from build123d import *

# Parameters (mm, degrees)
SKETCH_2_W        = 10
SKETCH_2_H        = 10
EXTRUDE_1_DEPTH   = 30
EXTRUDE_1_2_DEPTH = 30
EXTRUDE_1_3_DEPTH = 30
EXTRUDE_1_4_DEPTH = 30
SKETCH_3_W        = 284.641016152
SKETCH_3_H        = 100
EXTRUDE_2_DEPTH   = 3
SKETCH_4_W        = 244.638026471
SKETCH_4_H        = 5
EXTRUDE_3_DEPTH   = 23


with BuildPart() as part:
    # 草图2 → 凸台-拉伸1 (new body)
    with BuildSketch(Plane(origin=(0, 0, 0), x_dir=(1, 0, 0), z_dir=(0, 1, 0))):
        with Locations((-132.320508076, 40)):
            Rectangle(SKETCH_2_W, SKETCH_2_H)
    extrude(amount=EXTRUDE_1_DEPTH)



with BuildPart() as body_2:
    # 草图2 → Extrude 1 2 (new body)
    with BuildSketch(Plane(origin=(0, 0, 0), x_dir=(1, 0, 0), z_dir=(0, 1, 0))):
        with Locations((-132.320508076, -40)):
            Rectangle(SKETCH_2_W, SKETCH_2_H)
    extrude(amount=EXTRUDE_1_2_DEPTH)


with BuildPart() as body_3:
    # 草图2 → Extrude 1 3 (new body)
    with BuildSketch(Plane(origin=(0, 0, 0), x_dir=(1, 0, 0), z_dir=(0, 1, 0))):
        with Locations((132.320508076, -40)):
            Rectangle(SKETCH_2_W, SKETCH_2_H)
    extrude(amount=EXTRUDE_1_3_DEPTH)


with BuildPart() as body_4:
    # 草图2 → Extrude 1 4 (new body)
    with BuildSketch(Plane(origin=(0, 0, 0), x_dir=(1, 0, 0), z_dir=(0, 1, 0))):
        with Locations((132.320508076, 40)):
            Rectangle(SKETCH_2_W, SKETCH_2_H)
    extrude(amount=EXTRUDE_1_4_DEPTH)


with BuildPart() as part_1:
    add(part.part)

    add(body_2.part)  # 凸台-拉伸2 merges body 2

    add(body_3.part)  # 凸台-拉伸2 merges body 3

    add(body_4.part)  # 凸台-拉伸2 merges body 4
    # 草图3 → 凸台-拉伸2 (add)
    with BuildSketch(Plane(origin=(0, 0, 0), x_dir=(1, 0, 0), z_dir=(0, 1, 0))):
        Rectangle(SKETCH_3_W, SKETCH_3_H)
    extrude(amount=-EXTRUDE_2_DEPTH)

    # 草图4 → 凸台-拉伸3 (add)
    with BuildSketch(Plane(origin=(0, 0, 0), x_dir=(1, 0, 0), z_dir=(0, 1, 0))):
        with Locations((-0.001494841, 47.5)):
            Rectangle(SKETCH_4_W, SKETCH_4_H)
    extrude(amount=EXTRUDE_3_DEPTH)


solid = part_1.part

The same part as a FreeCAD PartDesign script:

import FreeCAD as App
import Part
import Sketcher
from FreeCAD import Vector

doc = App.newDocument("Part")
params = doc.addObject("Spreadsheet::Sheet", "Params")
for row, (alias, value) in enumerate([
    ("sketch1_width", "10 mm"),
    ("pad1_length", "30 mm"),
    ("sketch2_width", "10 mm"),
    ("pad2_length", "30 mm"),
    ("sketch3_width", "10 mm"),
    ("pad3_length", "30 mm"),
    ("sketch4_width", "10 mm"),
    ("pad4_length", "30 mm"),
    ("sketch5_height", "100 mm"),
    ("pad5_length", "3 mm"),
    ("sketch6_height", "5 mm"),
    ("pad6_length", "23 mm"),
], start=1):
    params.set(f"A{row}", alias)
    params.set(f"B{row}", "=" + value)
    params.setAlias(f"B{row}", alias)

body = doc.addObject("PartDesign::Body", "Body")

# Sketch on XZ plane
sketch1 = body.newObject("Sketcher::SketchObject", "Sketch")
sketch1.AttachmentSupport = (doc.getObject("XZ_Plane"), [""])
sketch1.MapMode = "FlatFace"
sketch1.addGeometry([
    Part.LineSegment(Vector(-137, -45, 0), Vector(-137, -35, 0)),
    Part.LineSegment(Vector(-137, -35, 0), Vector(-127, -35, 0)),
    Part.LineSegment(Vector(-127, -35, 0), Vector(-127, -45, 0)),
    Part.LineSegment(Vector(-127, -45, 0), Vector(-137, -45, 0)),
], False)
sketch1.addConstraint([
    Sketcher.Constraint("Coincident", 0, 2, 1, 1),
    Sketcher.Constraint("Coincident", 1, 2, 2, 1),
    Sketcher.Constraint("Coincident", 2, 2, 3, 1),
    Sketcher.Constraint("Coincident", 3, 2, 0, 1),
    Sketcher.Constraint("Vertical", 0),
    Sketcher.Constraint("Horizontal", 1),
    Sketcher.Constraint("Vertical", 2),
    Sketcher.Constraint("Horizontal", 3),
    Sketcher.Constraint("Equal", 3, 0),
    Sketcher.Constraint("DistanceX", 1, 1, 1, 2, 10.0),
    Sketcher.Constraint("DistanceY", 0, 2, -1, 1, 35.0),
    Sketcher.Constraint("DistanceX", 0, 2, -1, 1, 137.320508),
])
sketch1.setExpression("Constraints[9]", "Params.sketch1_width")
pad1 = body.newObject("PartDesign::Pad", "Pad")
pad1.Profile = sketch1
pad1.setExpression("Length", "Params.pad1_length")
pad1.Reversed = True
body2 = doc.addObject("PartDesign::Body", "Body001")

# Sketch on XZ plane
sketch2 = body2.newObject("Sketcher::SketchObject", "Sketch001")
sketch2.AttachmentSupport = (doc.getObject("XZ_Plane001"), [""])
sketch2.MapMode = "FlatFace"
sketch2.addGeometry([
    Part.LineSegment(Vector(-137, 35, 0), Vector(-137, 45, 0)),
    Part.LineSegment(Vector(-137, 45, 0), Vector(-127, 45, 0)),
    Part.LineSegment(Vector(-127, 45, 0), Vector(-127, 35, 0)),
    Part.LineSegment(Vector(-127, 35, 0), Vector(-137, 35, 0)),
], False)
sketch2.addConstraint([
    Sketcher.Constraint("Coincident", 0, 2, 1, 1),
    Sketcher.Constraint("Coincident", 1, 2, 2, 1),
    Sketcher.Constraint("Coincident", 2, 2, 3, 1),
    Sketcher.Constraint("Coincident", 3, 2, 0, 1),
    Sketcher.Constraint("Vertical", 0),
    Sketcher.Constraint("Horizontal", 1),
    Sketcher.Constraint("Vertical", 2),
    Sketcher.Constraint("Horizontal", 3),
    Sketcher.Constraint("Equal", 3, 0),
    Sketcher.Constraint("DistanceX", 1, 1, 1, 2, 10.0),
    Sketcher.Constraint("DistanceY", -1, 1, 0, 2, 45.0),
    Sketcher.Constraint("DistanceX", 0, 2, -1, 1, 137.320508),
])
sketch2.setExpression("Constraints[9]", "Params.sketch2_width")
pad2 = body2.newObject("PartDesign::Pad", "Pad001")
pad2.Profile = sketch2
pad2.setExpression("Length", "Params.pad2_length")
pad2.Reversed = True
body3 = doc.addObject("PartDesign::Body", "Body002")

# Sketch on XZ plane
sketch3 = body3.newObject("Sketcher::SketchObject", "Sketch002")
sketch3.AttachmentSupport = (doc.getObject("XZ_Plane002"), [""])
sketch3.MapMode = "FlatFace"
sketch3.addGeometry([
    Part.LineSegment(Vector(127, 35, 0), Vector(127, 45, 0)),
    Part.LineSegment(Vector(127, 45, 0), Vector(137, 45, 0)),
    Part.LineSegment(Vector(137, 45, 0), Vector(137, 35, 0)),
    Part.LineSegment(Vector(137, 35, 0), Vector(127, 35, 0)),
], False)
sketch3.addConstraint([
    Sketcher.Constraint("Coincident", 0, 2, 1, 1),
    Sketcher.Constraint("Coincident", 1, 2, 2, 1),
    Sketcher.Constraint("Coincident", 2, 2, 3, 1),
    Sketcher.Constraint("Coincident", 3, 2, 0, 1),
    Sketcher.Constraint("Vertical", 0),
    Sketcher.Constraint("Horizontal", 1),
    Sketcher.Constraint("Vertical", 2),
    Sketcher.Constraint("Horizontal", 3),
    Sketcher.Constraint("Equal", 3, 0),
    Sketcher.Constraint("DistanceX", 1, 1, 1, 2, 10.0),
    Sketcher.Constraint("DistanceY", -1, 1, 0, 2, 45.0),
    Sketcher.Constraint("DistanceX", -1, 1, 0, 2, 127.320508),
])
sketch3.setExpression("Constraints[9]", "Params.sketch3_width")
pad3 = body3.newObject("PartDesign::Pad", "Pad002")
pad3.Profile = sketch3
pad3.setExpression("Length", "Params.pad3_length")
pad3.Reversed = True
body4 = doc.addObject("PartDesign::Body", "Body003")

# Sketch on XZ plane
sketch4 = body4.newObject("Sketcher::SketchObject", "Sketch003")
sketch4.AttachmentSupport = (doc.getObject("XZ_Plane003"), [""])
sketch4.MapMode = "FlatFace"
sketch4.addGeometry([
    Part.LineSegment(Vector(127, -45, 0), Vector(127, -35, 0)),
    Part.LineSegment(Vector(127, -35, 0), Vector(137, -35, 0)),
    Part.LineSegment(Vector(137, -35, 0), Vector(137, -45, 0)),
    Part.LineSegment(Vector(137, -45, 0), Vector(127, -45, 0)),
], False)
sketch4.addConstraint([
    Sketcher.Constraint("Coincident", 0, 2, 1, 1),
    Sketcher.Constraint("Coincident", 1, 2, 2, 1),
    Sketcher.Constraint("Coincident", 2, 2, 3, 1),
    Sketcher.Constraint("Coincident", 3, 2, 0, 1),
    Sketcher.Constraint("Vertical", 0),
    Sketcher.Constraint("Horizontal", 1),
    Sketcher.Constraint("Vertical", 2),
    Sketcher.Constraint("Horizontal", 3),
    Sketcher.Constraint("Equal", 3, 0),
    Sketcher.Constraint("DistanceX", 1, 1, 1, 2, 10.0),
    Sketcher.Constraint("DistanceY", 0, 2, -1, 1, 35.0),
    Sketcher.Constraint("DistanceX", -1, 1, 0, 2, 127.320508),
])
sketch4.setExpression("Constraints[9]", "Params.sketch4_width")
pad4 = body4.newObject("PartDesign::Pad", "Pad003")
pad4.Profile = sketch4
pad4.setExpression("Length", "Params.pad4_length")
pad4.Reversed = True
body.AllowCompound = True
doc.recompute()

boolean = body.newObject("PartDesign::Boolean", "Boolean")
boolean.Type = "Fuse"
boolean.addObjects([body2])
doc.recompute()

boolean2 = body.newObject("PartDesign::Boolean", "Boolean001")
boolean2.Type = "Fuse"
boolean2.addObjects([body3])
doc.recompute()

boolean3 = body.newObject("PartDesign::Boolean", "Boolean002")
boolean3.Type = "Fuse"
boolean3.addObjects([body4])

# Sketch on XZ plane
sketch5 = body.newObject("Sketcher::SketchObject", "Sketch004")
sketch5.AttachmentSupport = (doc.getObject("XZ_Plane"), [""])
sketch5.MapMode = "FlatFace"
sketch5.addGeometry([
    Part.LineSegment(Vector(-142, -50, 0), Vector(-142, 50, 0)),
    Part.LineSegment(Vector(-142, 50, 0), Vector(142, 50, 0)),
    Part.LineSegment(Vector(142, 50, 0), Vector(142, -50, 0)),
    Part.LineSegment(Vector(142, -50, 0), Vector(-142, -50, 0)),
], False)
sketch5.addConstraint([
    Sketcher.Constraint("Coincident", 0, 2, 1, 1),
    Sketcher.Constraint("Coincident", 1, 2, 2, 1),
    Sketcher.Constraint("Coincident", 2, 2, 3, 1),
    Sketcher.Constraint("Coincident", 3, 2, 0, 1),
    Sketcher.Constraint("Vertical", 0),
    Sketcher.Constraint("Horizontal", 1),
    Sketcher.Constraint("Vertical", 2),
    Sketcher.Constraint("Horizontal", 3),
    Sketcher.Constraint("Symmetric", 0, 2, 2, 2, -1, 1),
    Sketcher.Constraint("DistanceY", 0, 1, 0, 2, 100.0),
    Sketcher.Constraint("DistanceX", 1, 1, 1, 2, 284.641016),
])
sketch5.setExpression("Constraints[9]", "Params.sketch5_height")
pad5 = body.newObject("PartDesign::Pad", "Pad004")
pad5.Profile = sketch5
pad5.setExpression("Length", "Params.pad5_length")

# Sketch on XZ plane
sketch6 = body.newObject("Sketcher::SketchObject", "Sketch005")
sketch6.AttachmentSupport = (doc.getObject("XZ_Plane"), [""])
sketch6.MapMode = "FlatFace"
sketch6.addGeometry([
    Part.LineSegment(Vector(-122, -50, 0), Vector(-122, -45, 0)),
    Part.LineSegment(Vector(-122, -45, 0), Vector(122, -45, 0)),
    Part.LineSegment(Vector(122, -45, 0), Vector(122, -50, 0)),
    Part.LineSegment(Vector(122, -50, 0), Vector(-122, -50, 0)),
], False)
sketch6.addConstraint([
    Sketcher.Constraint("Coincident", 0, 2, 1, 1),
    Sketcher.Constraint("Coincident", 1, 2, 2, 1),
    Sketcher.Constraint("Coincident", 2, 2, 3, 1),
    Sketcher.Constraint("Coincident", 3, 2, 0, 1),
    Sketcher.Constraint("Vertical", 0),
    Sketcher.Constraint("Horizontal", 1),
    Sketcher.Constraint("Vertical", 2),
    Sketcher.Constraint("Horizontal", 3),
    Sketcher.Constraint("DistanceY", 0, 1, 0, 2, 5.0),
    Sketcher.Constraint("DistanceY", 0, 2, -1, 1, 45.0),
    Sketcher.Constraint("DistanceX", 1, 1, 1, 2, 244.638026),
    Sketcher.Constraint("DistanceX", 0, 2, -1, 1, 122.320508),
])
sketch6.setExpression("Constraints[8]", "Params.sketch6_height")
pad6 = body.newObject("PartDesign::Pad", "Pad005")
pad6.Profile = sketch6
pad6.setExpression("Length", "Params.pad6_length")
pad6.Reversed = True

doc.recompute()
